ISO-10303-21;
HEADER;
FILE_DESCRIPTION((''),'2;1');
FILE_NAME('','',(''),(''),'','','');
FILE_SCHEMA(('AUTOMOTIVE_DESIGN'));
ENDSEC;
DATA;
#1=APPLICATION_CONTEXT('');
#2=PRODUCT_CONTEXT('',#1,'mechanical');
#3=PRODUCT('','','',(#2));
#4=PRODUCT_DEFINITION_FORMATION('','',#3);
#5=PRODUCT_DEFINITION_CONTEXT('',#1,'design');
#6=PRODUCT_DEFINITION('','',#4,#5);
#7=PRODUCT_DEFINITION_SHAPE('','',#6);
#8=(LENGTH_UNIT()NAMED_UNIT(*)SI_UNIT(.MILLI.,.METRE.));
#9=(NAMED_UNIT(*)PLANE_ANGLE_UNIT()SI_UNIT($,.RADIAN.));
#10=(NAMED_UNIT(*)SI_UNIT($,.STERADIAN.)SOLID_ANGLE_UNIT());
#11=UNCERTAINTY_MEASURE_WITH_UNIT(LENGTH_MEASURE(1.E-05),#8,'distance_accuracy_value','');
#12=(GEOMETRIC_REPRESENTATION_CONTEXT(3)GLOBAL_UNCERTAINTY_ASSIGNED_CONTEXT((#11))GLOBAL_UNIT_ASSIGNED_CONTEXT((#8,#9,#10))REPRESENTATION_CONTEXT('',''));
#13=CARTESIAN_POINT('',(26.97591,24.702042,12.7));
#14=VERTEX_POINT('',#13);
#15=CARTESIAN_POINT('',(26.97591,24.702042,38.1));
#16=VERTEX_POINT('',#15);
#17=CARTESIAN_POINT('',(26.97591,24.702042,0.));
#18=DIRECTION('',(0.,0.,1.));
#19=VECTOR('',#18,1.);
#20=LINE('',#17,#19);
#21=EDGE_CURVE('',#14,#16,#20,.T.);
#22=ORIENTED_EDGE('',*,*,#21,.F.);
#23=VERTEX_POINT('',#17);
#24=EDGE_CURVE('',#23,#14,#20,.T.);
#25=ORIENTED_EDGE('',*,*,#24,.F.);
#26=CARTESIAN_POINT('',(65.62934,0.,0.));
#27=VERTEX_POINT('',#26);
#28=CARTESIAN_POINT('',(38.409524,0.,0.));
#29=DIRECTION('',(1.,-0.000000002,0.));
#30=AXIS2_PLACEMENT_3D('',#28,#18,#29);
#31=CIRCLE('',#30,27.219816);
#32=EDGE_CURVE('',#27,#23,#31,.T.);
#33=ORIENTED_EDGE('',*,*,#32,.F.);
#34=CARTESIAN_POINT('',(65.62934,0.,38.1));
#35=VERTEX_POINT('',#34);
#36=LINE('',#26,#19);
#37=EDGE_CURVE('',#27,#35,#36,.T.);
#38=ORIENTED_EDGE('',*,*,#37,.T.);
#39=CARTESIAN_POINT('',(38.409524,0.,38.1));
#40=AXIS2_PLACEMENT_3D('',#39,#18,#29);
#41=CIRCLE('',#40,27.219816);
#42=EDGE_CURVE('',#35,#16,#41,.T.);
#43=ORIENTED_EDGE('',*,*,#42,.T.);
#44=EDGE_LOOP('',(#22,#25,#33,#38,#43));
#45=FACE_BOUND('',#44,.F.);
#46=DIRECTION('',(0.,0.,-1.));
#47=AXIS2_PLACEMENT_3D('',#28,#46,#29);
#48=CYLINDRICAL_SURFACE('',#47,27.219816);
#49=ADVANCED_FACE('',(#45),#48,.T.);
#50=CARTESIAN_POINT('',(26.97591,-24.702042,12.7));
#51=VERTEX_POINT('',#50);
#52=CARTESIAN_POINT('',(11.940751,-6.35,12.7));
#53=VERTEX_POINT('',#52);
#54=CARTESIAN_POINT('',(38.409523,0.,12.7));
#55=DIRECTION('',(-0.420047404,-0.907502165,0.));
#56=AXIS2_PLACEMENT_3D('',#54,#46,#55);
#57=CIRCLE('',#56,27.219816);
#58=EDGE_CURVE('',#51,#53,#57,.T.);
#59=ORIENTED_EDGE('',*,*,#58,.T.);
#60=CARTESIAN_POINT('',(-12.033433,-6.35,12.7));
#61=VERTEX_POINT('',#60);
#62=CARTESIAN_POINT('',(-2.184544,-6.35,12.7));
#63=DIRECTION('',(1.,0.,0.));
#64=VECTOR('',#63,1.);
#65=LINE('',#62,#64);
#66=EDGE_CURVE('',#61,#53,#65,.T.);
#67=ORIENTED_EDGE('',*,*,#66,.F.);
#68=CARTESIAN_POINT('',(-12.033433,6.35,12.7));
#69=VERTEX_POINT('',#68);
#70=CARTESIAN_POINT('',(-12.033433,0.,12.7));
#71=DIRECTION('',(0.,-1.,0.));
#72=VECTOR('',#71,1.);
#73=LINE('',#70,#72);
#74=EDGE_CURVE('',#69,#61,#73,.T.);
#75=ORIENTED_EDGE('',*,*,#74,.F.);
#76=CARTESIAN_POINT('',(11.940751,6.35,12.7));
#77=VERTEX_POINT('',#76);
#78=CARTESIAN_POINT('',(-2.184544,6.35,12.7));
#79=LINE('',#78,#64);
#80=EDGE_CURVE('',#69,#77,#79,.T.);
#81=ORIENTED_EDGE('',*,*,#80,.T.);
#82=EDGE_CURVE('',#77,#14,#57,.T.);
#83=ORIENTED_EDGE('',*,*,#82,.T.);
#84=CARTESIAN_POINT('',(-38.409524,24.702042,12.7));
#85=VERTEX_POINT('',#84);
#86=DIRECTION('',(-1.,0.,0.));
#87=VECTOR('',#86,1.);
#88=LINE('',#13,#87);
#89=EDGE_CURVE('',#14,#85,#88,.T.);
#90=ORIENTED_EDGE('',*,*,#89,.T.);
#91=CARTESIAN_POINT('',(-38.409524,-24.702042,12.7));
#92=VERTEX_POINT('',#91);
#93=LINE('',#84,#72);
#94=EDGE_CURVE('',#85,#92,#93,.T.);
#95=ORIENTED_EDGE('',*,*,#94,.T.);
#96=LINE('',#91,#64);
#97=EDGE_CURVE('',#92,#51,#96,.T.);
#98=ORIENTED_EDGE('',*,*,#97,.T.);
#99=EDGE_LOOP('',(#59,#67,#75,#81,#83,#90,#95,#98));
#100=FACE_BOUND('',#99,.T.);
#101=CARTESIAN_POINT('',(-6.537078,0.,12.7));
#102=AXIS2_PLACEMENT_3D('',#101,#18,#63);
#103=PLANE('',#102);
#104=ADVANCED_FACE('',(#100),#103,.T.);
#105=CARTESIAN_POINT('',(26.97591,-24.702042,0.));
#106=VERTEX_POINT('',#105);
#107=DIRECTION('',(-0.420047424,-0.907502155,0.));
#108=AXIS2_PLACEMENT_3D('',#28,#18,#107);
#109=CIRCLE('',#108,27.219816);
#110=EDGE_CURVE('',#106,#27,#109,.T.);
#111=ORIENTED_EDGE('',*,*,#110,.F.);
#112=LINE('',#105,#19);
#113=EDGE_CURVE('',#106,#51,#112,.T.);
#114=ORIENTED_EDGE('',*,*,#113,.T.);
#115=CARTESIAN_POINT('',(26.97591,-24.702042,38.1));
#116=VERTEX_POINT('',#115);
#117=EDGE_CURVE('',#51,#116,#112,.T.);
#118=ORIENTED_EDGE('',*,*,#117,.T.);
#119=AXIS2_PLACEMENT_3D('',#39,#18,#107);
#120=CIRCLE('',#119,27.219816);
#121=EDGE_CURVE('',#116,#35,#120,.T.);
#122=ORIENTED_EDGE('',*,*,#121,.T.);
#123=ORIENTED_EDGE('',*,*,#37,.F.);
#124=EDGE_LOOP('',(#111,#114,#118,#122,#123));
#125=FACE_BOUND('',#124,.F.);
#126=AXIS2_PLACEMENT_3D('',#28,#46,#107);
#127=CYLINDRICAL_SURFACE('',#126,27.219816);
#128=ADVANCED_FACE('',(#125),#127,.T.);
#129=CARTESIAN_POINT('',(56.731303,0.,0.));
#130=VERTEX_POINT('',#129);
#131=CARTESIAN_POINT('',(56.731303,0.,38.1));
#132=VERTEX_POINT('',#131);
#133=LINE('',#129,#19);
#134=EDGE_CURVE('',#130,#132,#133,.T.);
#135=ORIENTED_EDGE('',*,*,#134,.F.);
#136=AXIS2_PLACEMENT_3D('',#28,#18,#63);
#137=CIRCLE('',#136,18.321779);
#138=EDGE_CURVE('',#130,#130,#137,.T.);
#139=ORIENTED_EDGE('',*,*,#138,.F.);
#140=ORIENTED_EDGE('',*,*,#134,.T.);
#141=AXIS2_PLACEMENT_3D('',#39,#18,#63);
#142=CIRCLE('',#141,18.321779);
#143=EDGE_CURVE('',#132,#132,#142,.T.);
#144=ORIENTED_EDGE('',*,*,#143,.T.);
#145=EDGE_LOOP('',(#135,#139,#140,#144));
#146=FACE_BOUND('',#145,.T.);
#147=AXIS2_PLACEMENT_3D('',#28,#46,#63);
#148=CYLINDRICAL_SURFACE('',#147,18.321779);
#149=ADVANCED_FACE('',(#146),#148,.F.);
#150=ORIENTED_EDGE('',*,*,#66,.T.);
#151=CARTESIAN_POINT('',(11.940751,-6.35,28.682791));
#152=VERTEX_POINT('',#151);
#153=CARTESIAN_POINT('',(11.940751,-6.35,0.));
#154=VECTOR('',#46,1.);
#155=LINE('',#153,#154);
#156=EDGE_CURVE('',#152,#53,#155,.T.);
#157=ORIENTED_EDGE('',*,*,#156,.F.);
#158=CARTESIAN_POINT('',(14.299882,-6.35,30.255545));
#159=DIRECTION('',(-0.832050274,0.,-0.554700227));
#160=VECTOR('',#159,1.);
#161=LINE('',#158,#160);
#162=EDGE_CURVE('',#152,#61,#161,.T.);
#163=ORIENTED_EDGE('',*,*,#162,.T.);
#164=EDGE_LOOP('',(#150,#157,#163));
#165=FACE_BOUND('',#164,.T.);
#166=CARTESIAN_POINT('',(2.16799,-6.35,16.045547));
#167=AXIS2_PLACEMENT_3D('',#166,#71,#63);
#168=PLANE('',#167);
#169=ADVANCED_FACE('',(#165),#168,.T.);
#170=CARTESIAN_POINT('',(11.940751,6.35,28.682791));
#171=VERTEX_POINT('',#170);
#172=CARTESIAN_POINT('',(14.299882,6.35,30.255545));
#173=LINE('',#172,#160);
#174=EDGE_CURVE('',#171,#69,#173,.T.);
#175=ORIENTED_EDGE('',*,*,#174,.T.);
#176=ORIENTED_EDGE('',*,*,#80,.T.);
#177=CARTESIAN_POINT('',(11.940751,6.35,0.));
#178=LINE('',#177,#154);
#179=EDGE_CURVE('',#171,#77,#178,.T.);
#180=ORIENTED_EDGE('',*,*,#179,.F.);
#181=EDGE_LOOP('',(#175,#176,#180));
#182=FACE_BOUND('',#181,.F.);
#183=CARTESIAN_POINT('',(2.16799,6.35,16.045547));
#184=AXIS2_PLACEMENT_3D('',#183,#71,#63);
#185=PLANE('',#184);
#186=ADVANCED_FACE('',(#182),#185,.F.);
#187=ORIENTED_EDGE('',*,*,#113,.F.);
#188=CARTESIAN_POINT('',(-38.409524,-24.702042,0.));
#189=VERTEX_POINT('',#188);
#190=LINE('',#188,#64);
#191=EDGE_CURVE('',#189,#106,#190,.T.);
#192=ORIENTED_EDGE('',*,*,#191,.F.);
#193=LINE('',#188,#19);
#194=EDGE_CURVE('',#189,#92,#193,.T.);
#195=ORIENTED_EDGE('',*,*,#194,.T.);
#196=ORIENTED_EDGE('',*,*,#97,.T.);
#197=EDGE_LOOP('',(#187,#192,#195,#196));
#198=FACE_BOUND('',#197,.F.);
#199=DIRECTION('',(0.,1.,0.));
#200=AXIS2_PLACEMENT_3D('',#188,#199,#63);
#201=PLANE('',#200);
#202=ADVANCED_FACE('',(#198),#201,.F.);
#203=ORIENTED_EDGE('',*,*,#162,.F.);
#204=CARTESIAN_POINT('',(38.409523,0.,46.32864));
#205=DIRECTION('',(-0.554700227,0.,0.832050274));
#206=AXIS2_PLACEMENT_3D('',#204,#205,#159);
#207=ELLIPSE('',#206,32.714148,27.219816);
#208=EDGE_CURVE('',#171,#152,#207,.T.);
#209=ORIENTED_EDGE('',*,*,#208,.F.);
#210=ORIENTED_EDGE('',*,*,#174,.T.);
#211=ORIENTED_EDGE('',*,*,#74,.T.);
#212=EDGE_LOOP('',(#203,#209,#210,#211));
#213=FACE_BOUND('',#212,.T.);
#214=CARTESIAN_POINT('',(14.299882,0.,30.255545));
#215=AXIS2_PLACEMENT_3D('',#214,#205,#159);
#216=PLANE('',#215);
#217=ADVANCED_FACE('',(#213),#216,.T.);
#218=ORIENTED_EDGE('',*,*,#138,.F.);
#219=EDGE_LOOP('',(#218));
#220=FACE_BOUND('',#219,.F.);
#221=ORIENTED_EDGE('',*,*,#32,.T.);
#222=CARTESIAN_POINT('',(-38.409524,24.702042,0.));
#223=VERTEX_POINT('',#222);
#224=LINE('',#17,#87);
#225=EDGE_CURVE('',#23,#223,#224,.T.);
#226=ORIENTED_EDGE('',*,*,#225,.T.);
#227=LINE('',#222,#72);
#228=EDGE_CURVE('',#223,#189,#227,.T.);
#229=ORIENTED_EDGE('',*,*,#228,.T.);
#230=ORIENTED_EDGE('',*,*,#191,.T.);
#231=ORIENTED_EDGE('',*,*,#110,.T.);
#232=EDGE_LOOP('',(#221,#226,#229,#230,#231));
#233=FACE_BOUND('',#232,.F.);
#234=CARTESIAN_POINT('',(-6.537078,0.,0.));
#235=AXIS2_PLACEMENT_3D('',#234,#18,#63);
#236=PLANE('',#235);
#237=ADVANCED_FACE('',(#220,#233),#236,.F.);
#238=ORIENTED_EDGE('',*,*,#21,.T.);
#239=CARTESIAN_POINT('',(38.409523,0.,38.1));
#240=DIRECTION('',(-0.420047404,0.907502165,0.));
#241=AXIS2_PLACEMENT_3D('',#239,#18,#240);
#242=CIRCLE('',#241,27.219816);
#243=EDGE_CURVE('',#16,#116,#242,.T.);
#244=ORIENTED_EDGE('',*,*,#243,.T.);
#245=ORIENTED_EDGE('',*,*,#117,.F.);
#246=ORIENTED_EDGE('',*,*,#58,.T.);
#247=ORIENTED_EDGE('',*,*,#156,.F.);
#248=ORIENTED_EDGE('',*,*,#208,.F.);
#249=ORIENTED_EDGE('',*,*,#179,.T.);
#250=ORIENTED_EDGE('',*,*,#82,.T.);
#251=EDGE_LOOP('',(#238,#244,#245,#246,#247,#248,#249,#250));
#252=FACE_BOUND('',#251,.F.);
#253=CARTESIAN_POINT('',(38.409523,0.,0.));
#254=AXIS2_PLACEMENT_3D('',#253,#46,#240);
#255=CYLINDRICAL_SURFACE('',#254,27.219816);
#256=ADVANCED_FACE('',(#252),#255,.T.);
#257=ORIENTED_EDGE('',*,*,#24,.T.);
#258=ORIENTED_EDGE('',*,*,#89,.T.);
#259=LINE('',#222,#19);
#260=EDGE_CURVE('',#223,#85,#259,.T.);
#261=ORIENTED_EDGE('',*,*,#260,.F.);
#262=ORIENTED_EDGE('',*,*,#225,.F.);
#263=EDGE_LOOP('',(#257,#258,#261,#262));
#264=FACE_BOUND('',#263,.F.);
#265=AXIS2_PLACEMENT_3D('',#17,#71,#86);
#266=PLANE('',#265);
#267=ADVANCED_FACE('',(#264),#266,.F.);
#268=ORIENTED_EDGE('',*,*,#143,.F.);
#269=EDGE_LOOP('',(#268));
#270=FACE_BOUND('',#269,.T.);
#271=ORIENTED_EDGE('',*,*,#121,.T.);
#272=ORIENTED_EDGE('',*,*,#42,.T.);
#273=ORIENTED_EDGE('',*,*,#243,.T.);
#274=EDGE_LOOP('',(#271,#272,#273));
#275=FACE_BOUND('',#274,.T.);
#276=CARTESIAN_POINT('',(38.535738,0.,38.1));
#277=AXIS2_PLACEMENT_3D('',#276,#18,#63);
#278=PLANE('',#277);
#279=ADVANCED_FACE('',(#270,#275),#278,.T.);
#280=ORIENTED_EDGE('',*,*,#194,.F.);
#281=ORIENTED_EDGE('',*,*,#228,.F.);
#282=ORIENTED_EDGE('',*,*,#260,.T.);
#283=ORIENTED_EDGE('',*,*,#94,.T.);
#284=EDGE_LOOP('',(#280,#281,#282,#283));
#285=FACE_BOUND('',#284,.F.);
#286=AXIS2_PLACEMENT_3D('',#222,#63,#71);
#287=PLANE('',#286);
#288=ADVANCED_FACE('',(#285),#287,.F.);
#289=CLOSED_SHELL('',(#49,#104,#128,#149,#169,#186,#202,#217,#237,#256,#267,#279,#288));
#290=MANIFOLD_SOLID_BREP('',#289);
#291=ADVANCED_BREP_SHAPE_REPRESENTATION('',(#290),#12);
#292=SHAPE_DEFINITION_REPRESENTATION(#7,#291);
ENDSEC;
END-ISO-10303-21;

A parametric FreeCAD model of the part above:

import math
import FreeCAD as App
import Part
import Sketcher

V = App.Vector
Q = App.Units.Quantity

doc = App.newDocument("Part")
body = doc.addObject("PartDesign::Body", "Body")

# Sketch on XY plane
sketch1 = doc.addObject("Sketcher::SketchObject", "Sketch")
body.addObject(sketch1)
sketch1.AttachmentSupport = (doc.XY_Plane, [""])
sketch1.MapMode = "FlatFace"
sketch1.addGeometry(Part.ArcOfCircle(Part.Circle(V(38, 0, 0), V(0, 0, 1), 27), math.radians(0), math.radians(115)), False)
sketch1.addGeometry(Part.ArcOfCircle(Part.Circle(V(38, 0, 0), V(0, 0, 1), 27), math.radians(115), math.radians(245)), False)
sketch1.addGeometry(Part.ArcOfCircle(Part.Circle(V(38, 0, 0), V(0, 0, 1), 27), math.radians(-115), math.radians(0)), False)
sketch1.addGeometry(Part.Circle(V(38, 0, 0), V(0, 0, 1), 18), False)
sketch1.addConstraint(Sketcher.Constraint("Tangent", 0, 2, 1, 1))
sketch1.addConstraint(Sketcher.Constraint("Tangent", 1, 2, 2, 1))
sketch1.addConstraint(Sketcher.Constraint("Tangent", 2, 2, 0, 1))
sketch1.addConstraint(Sketcher.Constraint("Coincident", 3, 3, 0, 3))
sketch1.addConstraint(Sketcher.Constraint("Symmetric", 0, 2, 1, 2, -1))
sketch1.addConstraint(Sketcher.Constraint("PointOnObject", 2, 2, -1))
sketch1.addConstraint(Sketcher.Constraint("Diameter", 3, 36.643558))
sketch1.addConstraint(Sketcher.Constraint("Radius", 0, 27.219816))
sketch1.addConstraint(Sketcher.Constraint("DistanceX", -1, 1, 0, 2, 26.97591))
sketch1.addConstraint(Sketcher.Constraint("DistanceY", -1, 1, 0, 2, 24.702042))
pad1 = doc.addObject("PartDesign::Pad", "Pad")
body.addObject(pad1)
pad1.Profile = sketch1
pad1.Length = Q("1.5 in")

# Sketch on XY plane
sketch2 = doc.addObject("Sketcher::SketchObject", "Sketch001")
body.addObject(sketch2)
sketch2.AttachmentSupport = (doc.XY_Plane, [""])
sketch2.MapMode = "FlatFace"
sketch2.addGeometry(Part.ArcOfCircle(Part.Circle(V(38, 0, 0), V(0, 0, 1), 27), math.radians(115), math.radians(245)), False)
sketch2.addGeometry(Part.LineSegment(V(27, 25, 0), V(-38, 25, 0)), False)
sketch2.addGeometry(Part.LineSegment(V(-38, 25, 0), V(-38, -25, 0)), False)
sketch2.addGeometry(Part.LineSegment(V(-38, -25, 0), V(27, -25, 0)), False)
sketch2.addConstraint(Sketcher.Constraint("Coincident", 0, 1, 1, 1))
sketch2.addConstraint(Sketcher.Constraint("Coincident", 1, 2, 2, 1))
sketch2.addConstraint(Sketcher.Constraint("Coincident", 2, 2, 3, 1))
sketch2.addConstraint(Sketcher.Constraint("Coincident", 3, 2, 0, 2))
sketch2.addConstraint(Sketcher.Constraint("Horizontal", 1))
sketch2.addConstraint(Sketcher.Constraint("Vertical", 2))
sketch2.addConstraint(Sketcher.Constraint("Horizontal", 3))
sketch2.addConstraint(Sketcher.Constraint("Symmetric", 0, 1, 3, 2, -1))
sketch2.addConstraint(Sketcher.Constraint("Radius", 0, 27.219816))
sketch2.addConstraint(Sketcher.Constraint("DistanceX", 1, 2, 1, 1, 65.385434))
sketch2.addConstraint(Sketcher.Constraint("DistanceY", 2, 2, 2, 1, 49.404084))
sketch2.addConstraint(Sketcher.Constraint("DistanceX", -1, 1, 0, 1, 26.97591))
pad2 = doc.addObject("PartDesign::Pad", "Pad001")
body.addObject(pad2)
pad2.Profile = sketch2
pad2.Length = Q("0.5 in")

# Sketch on XZ plane
sketch3 = doc.addObject("Sketcher::SketchObject", "Sketch002")
body.addObject(sketch3)
sketch3.AttachmentSupport = (doc.XZ_Plane, [""])
sketch3.MapMode = "FlatFace"
sketch3.addGeometry(Part.LineSegment(V(14, 9, 0), V(14, 30, 0)), False)
sketch3.addGeometry(Part.LineSegment(V(14, 30, 0), V(-17, 9, 0)), False)
sketch3.addGeometry(Part.LineSegment(V(-17, 9, 0), V(14, 9, 0)), False)
sketch3.addConstraint(Sketcher.Constraint("Coincident", 0, 2, 1, 1))
sketch3.addConstraint(Sketcher.Constraint("Coincident", 1, 2, 2, 1))
sketch3.addConstraint(Sketcher.Constraint("Coincident", 2, 2, 0, 1))
sketch3.addConstraint(Sketcher.Constraint("Vertical", 0))
sketch3.addConstraint(Sketcher.Constraint("Horizontal", 2))
sketch3.addConstraint(Sketcher.Constraint("DistanceX", 2, 1, 2, 2, 31.610267))
sketch3.addConstraint(Sketcher.Constraint("DistanceY", 0, 1, 0, 2, 21.073513))
sketch3.addConstraint(Sketcher.Constraint("DistanceX", -1, 1, 0, 2, 14.299882))
sketch3.addConstraint(Sketcher.Constraint("DistanceY", -1, 1, 0, 2, 30.255545))
pad3 = doc.addObject("PartDesign::Pad", "Pad002")
body.addObject(pad3)
pad3.Profile = sketch3
pad3.Length = Q("0.5 in")
pad3.Midplane = True

doc.recompute()
